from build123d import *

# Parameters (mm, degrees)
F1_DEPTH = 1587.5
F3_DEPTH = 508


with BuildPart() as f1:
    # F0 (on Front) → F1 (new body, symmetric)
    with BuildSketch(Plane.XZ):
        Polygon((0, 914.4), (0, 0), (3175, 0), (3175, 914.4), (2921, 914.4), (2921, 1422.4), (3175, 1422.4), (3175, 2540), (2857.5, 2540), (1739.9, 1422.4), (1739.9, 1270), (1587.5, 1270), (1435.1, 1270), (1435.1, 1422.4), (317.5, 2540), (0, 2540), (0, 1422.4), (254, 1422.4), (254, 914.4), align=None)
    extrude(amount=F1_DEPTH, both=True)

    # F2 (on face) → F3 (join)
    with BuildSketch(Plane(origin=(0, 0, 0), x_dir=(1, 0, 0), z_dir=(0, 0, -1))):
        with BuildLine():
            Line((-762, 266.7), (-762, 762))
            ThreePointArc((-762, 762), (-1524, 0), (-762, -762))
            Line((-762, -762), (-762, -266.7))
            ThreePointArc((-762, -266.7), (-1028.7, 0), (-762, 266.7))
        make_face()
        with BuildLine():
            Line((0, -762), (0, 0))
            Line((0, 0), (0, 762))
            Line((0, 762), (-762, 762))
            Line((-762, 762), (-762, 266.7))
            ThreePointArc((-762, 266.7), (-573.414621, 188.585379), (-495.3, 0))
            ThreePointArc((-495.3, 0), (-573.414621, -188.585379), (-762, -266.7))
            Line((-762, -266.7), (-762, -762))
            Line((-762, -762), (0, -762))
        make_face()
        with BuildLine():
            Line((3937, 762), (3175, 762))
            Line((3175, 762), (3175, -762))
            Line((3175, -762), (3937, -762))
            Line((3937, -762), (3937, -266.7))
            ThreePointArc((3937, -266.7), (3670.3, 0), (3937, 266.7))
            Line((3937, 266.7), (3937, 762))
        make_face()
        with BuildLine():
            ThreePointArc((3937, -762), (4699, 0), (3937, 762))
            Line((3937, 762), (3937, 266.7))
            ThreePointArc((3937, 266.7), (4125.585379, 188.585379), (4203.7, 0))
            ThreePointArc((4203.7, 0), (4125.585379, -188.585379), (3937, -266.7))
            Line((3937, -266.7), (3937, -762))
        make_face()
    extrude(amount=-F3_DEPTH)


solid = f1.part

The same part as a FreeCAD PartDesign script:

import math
import FreeCAD as App
import Part
import Sketcher
from FreeCAD import Vector
Q = App.Units.Quantity


def add_polygon(sketch, points):
    """Adds a closed chain of lines whose ends are joined by coincident constraints."""
    first, n = sketch.GeometryCount, len(points)
    for a, b in zip(points, points[1:] + points[:1]):
        sketch.addGeometry(Part.LineSegment(App.Vector(*a, 0), App.Vector(*b, 0)), False)
    for i in range(n):
        sketch.addConstraint(Sketcher.Constraint("Coincident", first + i, 2, first + (i + 1) % n, 1))

doc = App.newDocument("Part")
body = doc.addObject("PartDesign::Body", "Body")

sketch1 = doc.addObject("Sketcher::SketchObject", "Sketch")
body.addObject(sketch1)
sketch1.AttachmentSupport = (doc.XZ_Plane, [""])
sketch1.MapMode = "FlatFace"
add_polygon(sketch1, [(0, 914.4), (0, 0), (3175, 0), (3175, 914.4), (2921, 914.4), (2921, 1422.4), (3175, 1422.4), (3175, 2540), (2857.5, 2540), (1739.9, 1422.4), (1739.9, 1270), (1435.1, 1270), (1435.1, 1422.4), (317.5, 2540), (0, 2540), (0, 1422.4), (254, 1422.4), (254, 914.4)])
sketch1.addConstraint([
    Sketcher.Constraint("Vertical", 0),
    Sketcher.Constraint("Horizontal", 1),
    Sketcher.Constraint("Vertical", 2),
    Sketcher.Constraint("Horizontal", 3),
    Sketcher.Constraint("Vertical", 4),
    Sketcher.Constraint("Horizontal", 5),
    Sketcher.Constraint("Vertical", 6),
    Sketcher.Constraint("Horizontal", 7),
    Sketcher.Constraint("Vertical", 9),
    Sketcher.Constraint("Horizontal", 10),
    Sketcher.Constraint("Vertical", 11),
    Sketcher.Constraint("Horizontal", 13),
    Sketcher.Constraint("Vertical", 14),
    Sketcher.Constraint("Horizontal", 15),
    Sketcher.Constraint("Vertical", 16),
    Sketcher.Constraint("Horizontal", 17),
    Sketcher.Constraint("Coincident", 0, 2, -1, 1),
    Sketcher.Constraint("PointOnObject", 13, 2, -2),
    Sketcher.Constraint("Perpendicular", 8, 12),
    Sketcher.Constraint("Horizontal", 5, 2, 8, 2),
    Sketcher.Constraint("Horizontal", 8, 2, 11, 2),
    Sketcher.Constraint("Horizontal", 7, 2, 12, 2),
    Sketcher.Constraint("Horizontal", 11, 2, 14, 2),
    Sketcher.Constraint("Horizontal", 3, 2, 16, 2),
    Sketcher.Constraint("Vertical", 2, 2, 5, 2),
    Sketcher.Constraint("Equal", 7, 13),
    Sketcher.Constraint("Equal", 5, 15),
    Sketcher.Constraint("Equal", 8, 12),
    Sketcher.Constraint("DistanceX", 1, 1, 1, 2, Q("125 in")),
    Sketcher.Constraint("DistanceX", 3, 2, 3, 1, Q("10 in")),
    Sketcher.Constraint("DistanceX", 10, 2, 10, 1, Q("12 in")),
    Sketcher.Constraint("DistanceY", 0, 2, 0, 1, Q("36 in")),
    Sketcher.Constraint("DistanceY", 4, 1, 4, 2, Q("20 in")),
    Sketcher.Constraint("DistanceY", 6, 1, 6, 2, Q("44 in")),
    Sketcher.Constraint("DistanceY", 9, 2, 9, 1, Q("6 in")),
])
pad1 = doc.addObject("PartDesign::Pad", "Pad")
body.addObject(pad1)
pad1.Profile = sketch1
pad1.Length = Q("125 in")
pad1.Midplane = True

sketch2 = doc.addObject("Sketcher::SketchObject", "Sketch001")
body.addObject(sketch2)
sketch2.AttachmentSupport = (doc.XY_Plane, [""])
sketch2.MapMode = "FlatFace"
sketch2.addGeometry([
    Part.ArcOfCircle(Part.Circle(Vector(-762, 0, 0), Vector(0, 0, 1), 762), math.radians(90), math.radians(270)),
    Part.LineSegment(Vector(-762, 762, 0), Vector(0, 762, 0)),
    Part.LineSegment(Vector(0, 762, 0), Vector(0, -762, 0)),
    Part.LineSegment(Vector(0, -762, 0), Vector(-762, -762, 0)),
    Part.ArcOfCircle(Part.Circle(Vector(-762, 0, 0), Vector(0, 0, 1), 266.7), math.radians(90), math.radians(270)),
    Part.ArcOfCircle(Part.Circle(Vector(-761.999998, -0.000002, 0), Vector(0, 0, 1), 266.699998), math.radians(-90), math.radians(0)),
    Part.ArcOfCircle(Part.Circle(Vector(-761.999998, 0.000002, 0), Vector(0, 0, 1), 266.699998), math.radians(0), math.radians(90)),
    Part.LineSegment(Vector(3937, -762, 0), Vector(3175, -762, 0)),
    Part.LineSegment(Vector(3175, -762, 0), Vector(3175, 762, 0)),
    Part.LineSegment(Vector(3175, 762, 0), Vector(3937, 762, 0)),
    Part.ArcOfCircle(Part.Circle(Vector(3937, 0, 0), Vector(0, 0, 1), 762), math.radians(-90), math.radians(90)),
    Part.ArcOfCircle(Part.Circle(Vector(3937, 0, 0), Vector(0, 0, 1), 266.7), math.radians(90), math.radians(270)),
    Part.ArcOfCircle(Part.Circle(Vector(3937.000002, -0.000002, 0), Vector(0, 0, 1), 266.699998), math.radians(-90), math.radians(0)),
    Part.ArcOfCircle(Part.Circle(Vector(3937.000002, 0.000002, 0), Vector(0, 0, 1), 266.699998), math.radians(0), math.radians(90)),
], False)
sketch2.addConstraint([
    Sketcher.Constraint("Tangent", 0, 1, 1, 1),
    Sketcher.Constraint("Coincident", 1, 2, 2, 1),
    Sketcher.Constraint("Coincident", 2, 2, 3, 1),
    Sketcher.Constraint("Tangent", 3, 2, 0, 2),
    Sketcher.Constraint("Tangent", 4, 2, 5, 1),
    Sketcher.Constraint("Tangent", 5, 2, 6, 1),
    Sketcher.Constraint("Tangent", 6, 2, 4, 1),
    Sketcher.Constraint("Coincident", 7, 2, 8, 1),
    Sketcher.Constraint("Coincident", 8, 2, 9, 1),
    Sketcher.Constraint("Tangent", 9, 2, 10, 2),
    Sketcher.Constraint("Tangent", 10, 1, 7, 1),
    Sketcher.Constraint("Tangent", 11, 2, 12, 1),
    Sketcher.Constraint("Tangent", 12, 2, 13, 1),
    Sketcher.Constraint("Tangent", 13, 2, 11, 1),
    Sketcher.Constraint("Horizontal", 1),
    Sketcher.Constraint("Vertical", 2),
    Sketcher.Constraint("Horizontal", 3),
    Sketcher.Constraint("Horizontal", 7),
    Sketcher.Constraint("Vertical", 8),
    Sketcher.Constraint("Horizontal", 9),
    Sketcher.Constraint("Coincident", 4, 3, 0, 3),
    Sketcher.Constraint("Coincident", 11, 3, 10, 3),
    Sketcher.Constraint("Equal", 0, 10),
    Sketcher.Constraint("Equal", 6, 11),
    Sketcher.Constraint("Symmetric", 1, 2, 2, 2, -1, 1),
    Sketcher.Constraint("Symmetric", 11, 2, 13, 2, -1),
    Sketcher.Constraint("PointOnObject", 5, 2, -1),
    Sketcher.Constraint("PointOnObject", 12, 2, -1),
    Sketcher.Constraint("Vertical", 3, 2, 4, 2),
    Sketcher.Constraint("Vertical", 4, 2, 6, 2),
    Sketcher.Constraint("Vertical", 10, 1, 11, 2),
    Sketcher.Constraint("Equal", 3, 7),
    Sketcher.Constraint("Radius", 0, Q("30 in")),
    Sketcher.Constraint("Radius", 4, Q("10.5 in")),
    Sketcher.Constraint("DistanceX", 1, 1, 1, 2, Q("30 in")),
    Sketcher.Constraint("DistanceX", -1, 1, 10, 3, Q("155 in")),
])
pad2 = doc.addObject("PartDesign::Pad", "Pad001")
body.addObject(pad2)
pad2.Profile = sketch2
pad2.Length = Q("20 in")

doc.recompute()
